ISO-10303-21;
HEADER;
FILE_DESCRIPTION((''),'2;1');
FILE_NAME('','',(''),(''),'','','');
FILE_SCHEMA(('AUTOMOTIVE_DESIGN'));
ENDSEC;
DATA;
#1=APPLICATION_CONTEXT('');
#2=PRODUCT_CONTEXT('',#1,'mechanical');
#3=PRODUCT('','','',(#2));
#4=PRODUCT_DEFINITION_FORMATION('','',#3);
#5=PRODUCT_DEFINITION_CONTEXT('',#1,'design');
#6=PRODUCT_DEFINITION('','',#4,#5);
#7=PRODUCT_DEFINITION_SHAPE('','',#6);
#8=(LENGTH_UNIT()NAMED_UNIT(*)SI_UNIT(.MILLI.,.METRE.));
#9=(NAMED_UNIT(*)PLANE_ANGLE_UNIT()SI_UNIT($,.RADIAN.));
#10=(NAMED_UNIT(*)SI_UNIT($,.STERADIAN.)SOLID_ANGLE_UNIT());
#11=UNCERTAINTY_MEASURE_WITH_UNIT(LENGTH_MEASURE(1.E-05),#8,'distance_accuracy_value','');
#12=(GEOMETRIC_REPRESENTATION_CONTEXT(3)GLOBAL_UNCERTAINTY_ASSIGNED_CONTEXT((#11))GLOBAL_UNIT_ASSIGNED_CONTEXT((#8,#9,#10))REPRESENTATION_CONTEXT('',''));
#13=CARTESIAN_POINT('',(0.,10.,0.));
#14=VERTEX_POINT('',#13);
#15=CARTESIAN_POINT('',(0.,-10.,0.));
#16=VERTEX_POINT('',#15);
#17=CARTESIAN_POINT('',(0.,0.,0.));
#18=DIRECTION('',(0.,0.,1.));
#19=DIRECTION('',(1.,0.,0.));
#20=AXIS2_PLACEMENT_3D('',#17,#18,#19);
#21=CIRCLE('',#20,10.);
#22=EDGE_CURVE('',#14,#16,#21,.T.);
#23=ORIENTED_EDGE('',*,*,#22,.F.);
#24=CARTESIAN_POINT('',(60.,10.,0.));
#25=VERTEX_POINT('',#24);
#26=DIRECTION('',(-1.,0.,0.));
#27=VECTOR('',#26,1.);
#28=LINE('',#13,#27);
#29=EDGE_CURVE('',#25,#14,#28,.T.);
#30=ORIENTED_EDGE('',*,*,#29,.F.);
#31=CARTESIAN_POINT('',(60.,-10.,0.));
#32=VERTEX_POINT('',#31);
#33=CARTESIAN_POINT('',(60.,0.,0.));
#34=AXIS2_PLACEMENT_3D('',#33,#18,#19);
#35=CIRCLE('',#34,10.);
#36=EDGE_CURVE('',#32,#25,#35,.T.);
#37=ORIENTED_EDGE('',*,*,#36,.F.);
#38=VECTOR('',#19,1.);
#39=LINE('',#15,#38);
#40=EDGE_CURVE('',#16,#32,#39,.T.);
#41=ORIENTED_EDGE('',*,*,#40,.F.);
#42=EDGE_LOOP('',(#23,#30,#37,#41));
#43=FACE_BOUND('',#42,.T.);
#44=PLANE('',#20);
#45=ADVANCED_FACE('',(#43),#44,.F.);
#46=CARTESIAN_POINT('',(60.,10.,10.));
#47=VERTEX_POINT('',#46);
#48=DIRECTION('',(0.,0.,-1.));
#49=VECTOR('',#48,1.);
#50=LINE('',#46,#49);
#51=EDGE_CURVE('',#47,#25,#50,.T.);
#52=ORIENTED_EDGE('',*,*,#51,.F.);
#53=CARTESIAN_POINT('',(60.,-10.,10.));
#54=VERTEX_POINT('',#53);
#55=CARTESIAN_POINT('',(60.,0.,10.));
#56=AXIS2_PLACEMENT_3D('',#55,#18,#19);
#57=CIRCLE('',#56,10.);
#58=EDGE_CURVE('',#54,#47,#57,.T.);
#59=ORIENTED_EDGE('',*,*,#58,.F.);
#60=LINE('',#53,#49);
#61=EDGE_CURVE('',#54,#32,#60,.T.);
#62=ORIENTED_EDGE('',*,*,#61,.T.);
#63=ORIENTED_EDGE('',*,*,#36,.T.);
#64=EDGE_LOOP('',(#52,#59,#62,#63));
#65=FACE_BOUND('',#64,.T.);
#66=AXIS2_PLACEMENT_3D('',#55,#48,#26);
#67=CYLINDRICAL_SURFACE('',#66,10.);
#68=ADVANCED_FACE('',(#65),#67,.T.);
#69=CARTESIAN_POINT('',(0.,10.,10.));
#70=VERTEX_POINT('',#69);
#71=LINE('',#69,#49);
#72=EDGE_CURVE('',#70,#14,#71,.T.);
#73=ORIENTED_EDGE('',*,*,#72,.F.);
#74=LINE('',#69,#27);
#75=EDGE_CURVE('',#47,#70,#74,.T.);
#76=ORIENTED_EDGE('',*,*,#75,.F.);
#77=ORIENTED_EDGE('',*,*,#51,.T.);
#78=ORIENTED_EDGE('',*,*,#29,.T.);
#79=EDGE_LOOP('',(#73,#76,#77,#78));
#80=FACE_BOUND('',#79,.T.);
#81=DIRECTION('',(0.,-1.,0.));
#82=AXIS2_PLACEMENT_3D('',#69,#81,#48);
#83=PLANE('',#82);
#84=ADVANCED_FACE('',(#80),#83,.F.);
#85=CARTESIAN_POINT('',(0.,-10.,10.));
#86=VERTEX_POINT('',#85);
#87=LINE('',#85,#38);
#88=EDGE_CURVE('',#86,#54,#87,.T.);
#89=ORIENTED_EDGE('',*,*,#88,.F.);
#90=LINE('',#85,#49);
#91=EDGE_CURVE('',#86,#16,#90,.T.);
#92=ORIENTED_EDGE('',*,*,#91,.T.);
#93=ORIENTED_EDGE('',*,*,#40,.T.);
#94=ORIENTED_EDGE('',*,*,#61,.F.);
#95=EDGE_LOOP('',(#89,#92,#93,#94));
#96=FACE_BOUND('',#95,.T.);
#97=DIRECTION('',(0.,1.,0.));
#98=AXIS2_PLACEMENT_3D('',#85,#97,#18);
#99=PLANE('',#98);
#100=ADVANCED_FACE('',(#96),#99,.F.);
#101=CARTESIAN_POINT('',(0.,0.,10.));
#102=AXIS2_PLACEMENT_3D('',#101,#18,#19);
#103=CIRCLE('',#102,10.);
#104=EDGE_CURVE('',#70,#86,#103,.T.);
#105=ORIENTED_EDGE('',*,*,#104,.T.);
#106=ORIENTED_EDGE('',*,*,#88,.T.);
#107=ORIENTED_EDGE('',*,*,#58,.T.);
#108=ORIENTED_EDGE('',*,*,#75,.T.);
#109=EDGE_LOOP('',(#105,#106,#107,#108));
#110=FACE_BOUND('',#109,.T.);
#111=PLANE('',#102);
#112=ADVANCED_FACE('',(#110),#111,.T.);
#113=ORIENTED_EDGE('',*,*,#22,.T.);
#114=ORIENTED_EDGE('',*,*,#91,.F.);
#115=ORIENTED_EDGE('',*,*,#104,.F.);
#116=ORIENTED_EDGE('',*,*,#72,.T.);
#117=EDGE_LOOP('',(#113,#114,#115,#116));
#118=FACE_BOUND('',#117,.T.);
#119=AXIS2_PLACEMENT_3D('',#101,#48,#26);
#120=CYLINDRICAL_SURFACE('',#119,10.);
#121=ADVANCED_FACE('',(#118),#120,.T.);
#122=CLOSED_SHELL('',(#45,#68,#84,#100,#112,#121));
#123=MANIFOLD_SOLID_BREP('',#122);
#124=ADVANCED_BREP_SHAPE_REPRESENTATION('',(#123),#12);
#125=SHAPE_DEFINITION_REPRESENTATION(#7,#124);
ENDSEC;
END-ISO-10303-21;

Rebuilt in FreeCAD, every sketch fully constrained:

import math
import FreeCAD as App
import Part
import Sketcher

V = App.Vector

doc = App.newDocument("Part")
body = doc.addObject("PartDesign::Body", "Body")

# Sketch on XY plane
sketch1 = body.newObject("Sketcher::SketchObject", "Sketch")
sketch1.AttachmentSupport = (doc.getObject("XY_Plane"), [""])
sketch1.MapMode = "FlatFace"
sketch1.addGeometry(Part.LineSegment(V(60, 10, 0), V(0, 10, 0)), False)
sketch1.addGeometry(Part.ArcOfCircle(Part.Circle(V(0, 0, 0), V(0, 0, 1), 10), math.radians(90), math.radians(270)), False)
sketch1.addGeometry(Part.LineSegment(V(0, -10, 0), V(60, -10, 0)), False)
sketch1.addGeometry(Part.ArcOfCircle(Part.Circle(V(60, 0, 0), V(0, 0, 1), 10), math.radians(-90), math.radians(90)), False)
sketch1.addConstraint(Sketcher.Constraint("Tangent", 0, 2, 1, 1))
sketch1.addConstraint(Sketcher.Constraint("Tangent", 1, 2, 2, 1))
sketch1.addConstraint(Sketcher.Constraint("Tangent", 2, 2, 3, 1))
sketch1.addConstraint(Sketcher.Constraint("Tangent", 3, 2, 0, 1))
sketch1.addConstraint(Sketcher.Constraint("Horizontal", 0))
sketch1.addConstraint(Sketcher.Constraint("Horizontal", 2))
sketch1.addConstraint(Sketcher.Constraint("Coincident", 1, 3, -1, 1))
sketch1.addConstraint(Sketcher.Constraint("Radius", 1, 10.0))
sketch1.addConstraint(Sketcher.Constraint("DistanceX", 0, 2, 0, 1, 60.0))
pad1 = body.newObject("PartDesign::Pad", "Pad")
pad1.Profile = sketch1
pad1.Length = 10

doc.recompute()
